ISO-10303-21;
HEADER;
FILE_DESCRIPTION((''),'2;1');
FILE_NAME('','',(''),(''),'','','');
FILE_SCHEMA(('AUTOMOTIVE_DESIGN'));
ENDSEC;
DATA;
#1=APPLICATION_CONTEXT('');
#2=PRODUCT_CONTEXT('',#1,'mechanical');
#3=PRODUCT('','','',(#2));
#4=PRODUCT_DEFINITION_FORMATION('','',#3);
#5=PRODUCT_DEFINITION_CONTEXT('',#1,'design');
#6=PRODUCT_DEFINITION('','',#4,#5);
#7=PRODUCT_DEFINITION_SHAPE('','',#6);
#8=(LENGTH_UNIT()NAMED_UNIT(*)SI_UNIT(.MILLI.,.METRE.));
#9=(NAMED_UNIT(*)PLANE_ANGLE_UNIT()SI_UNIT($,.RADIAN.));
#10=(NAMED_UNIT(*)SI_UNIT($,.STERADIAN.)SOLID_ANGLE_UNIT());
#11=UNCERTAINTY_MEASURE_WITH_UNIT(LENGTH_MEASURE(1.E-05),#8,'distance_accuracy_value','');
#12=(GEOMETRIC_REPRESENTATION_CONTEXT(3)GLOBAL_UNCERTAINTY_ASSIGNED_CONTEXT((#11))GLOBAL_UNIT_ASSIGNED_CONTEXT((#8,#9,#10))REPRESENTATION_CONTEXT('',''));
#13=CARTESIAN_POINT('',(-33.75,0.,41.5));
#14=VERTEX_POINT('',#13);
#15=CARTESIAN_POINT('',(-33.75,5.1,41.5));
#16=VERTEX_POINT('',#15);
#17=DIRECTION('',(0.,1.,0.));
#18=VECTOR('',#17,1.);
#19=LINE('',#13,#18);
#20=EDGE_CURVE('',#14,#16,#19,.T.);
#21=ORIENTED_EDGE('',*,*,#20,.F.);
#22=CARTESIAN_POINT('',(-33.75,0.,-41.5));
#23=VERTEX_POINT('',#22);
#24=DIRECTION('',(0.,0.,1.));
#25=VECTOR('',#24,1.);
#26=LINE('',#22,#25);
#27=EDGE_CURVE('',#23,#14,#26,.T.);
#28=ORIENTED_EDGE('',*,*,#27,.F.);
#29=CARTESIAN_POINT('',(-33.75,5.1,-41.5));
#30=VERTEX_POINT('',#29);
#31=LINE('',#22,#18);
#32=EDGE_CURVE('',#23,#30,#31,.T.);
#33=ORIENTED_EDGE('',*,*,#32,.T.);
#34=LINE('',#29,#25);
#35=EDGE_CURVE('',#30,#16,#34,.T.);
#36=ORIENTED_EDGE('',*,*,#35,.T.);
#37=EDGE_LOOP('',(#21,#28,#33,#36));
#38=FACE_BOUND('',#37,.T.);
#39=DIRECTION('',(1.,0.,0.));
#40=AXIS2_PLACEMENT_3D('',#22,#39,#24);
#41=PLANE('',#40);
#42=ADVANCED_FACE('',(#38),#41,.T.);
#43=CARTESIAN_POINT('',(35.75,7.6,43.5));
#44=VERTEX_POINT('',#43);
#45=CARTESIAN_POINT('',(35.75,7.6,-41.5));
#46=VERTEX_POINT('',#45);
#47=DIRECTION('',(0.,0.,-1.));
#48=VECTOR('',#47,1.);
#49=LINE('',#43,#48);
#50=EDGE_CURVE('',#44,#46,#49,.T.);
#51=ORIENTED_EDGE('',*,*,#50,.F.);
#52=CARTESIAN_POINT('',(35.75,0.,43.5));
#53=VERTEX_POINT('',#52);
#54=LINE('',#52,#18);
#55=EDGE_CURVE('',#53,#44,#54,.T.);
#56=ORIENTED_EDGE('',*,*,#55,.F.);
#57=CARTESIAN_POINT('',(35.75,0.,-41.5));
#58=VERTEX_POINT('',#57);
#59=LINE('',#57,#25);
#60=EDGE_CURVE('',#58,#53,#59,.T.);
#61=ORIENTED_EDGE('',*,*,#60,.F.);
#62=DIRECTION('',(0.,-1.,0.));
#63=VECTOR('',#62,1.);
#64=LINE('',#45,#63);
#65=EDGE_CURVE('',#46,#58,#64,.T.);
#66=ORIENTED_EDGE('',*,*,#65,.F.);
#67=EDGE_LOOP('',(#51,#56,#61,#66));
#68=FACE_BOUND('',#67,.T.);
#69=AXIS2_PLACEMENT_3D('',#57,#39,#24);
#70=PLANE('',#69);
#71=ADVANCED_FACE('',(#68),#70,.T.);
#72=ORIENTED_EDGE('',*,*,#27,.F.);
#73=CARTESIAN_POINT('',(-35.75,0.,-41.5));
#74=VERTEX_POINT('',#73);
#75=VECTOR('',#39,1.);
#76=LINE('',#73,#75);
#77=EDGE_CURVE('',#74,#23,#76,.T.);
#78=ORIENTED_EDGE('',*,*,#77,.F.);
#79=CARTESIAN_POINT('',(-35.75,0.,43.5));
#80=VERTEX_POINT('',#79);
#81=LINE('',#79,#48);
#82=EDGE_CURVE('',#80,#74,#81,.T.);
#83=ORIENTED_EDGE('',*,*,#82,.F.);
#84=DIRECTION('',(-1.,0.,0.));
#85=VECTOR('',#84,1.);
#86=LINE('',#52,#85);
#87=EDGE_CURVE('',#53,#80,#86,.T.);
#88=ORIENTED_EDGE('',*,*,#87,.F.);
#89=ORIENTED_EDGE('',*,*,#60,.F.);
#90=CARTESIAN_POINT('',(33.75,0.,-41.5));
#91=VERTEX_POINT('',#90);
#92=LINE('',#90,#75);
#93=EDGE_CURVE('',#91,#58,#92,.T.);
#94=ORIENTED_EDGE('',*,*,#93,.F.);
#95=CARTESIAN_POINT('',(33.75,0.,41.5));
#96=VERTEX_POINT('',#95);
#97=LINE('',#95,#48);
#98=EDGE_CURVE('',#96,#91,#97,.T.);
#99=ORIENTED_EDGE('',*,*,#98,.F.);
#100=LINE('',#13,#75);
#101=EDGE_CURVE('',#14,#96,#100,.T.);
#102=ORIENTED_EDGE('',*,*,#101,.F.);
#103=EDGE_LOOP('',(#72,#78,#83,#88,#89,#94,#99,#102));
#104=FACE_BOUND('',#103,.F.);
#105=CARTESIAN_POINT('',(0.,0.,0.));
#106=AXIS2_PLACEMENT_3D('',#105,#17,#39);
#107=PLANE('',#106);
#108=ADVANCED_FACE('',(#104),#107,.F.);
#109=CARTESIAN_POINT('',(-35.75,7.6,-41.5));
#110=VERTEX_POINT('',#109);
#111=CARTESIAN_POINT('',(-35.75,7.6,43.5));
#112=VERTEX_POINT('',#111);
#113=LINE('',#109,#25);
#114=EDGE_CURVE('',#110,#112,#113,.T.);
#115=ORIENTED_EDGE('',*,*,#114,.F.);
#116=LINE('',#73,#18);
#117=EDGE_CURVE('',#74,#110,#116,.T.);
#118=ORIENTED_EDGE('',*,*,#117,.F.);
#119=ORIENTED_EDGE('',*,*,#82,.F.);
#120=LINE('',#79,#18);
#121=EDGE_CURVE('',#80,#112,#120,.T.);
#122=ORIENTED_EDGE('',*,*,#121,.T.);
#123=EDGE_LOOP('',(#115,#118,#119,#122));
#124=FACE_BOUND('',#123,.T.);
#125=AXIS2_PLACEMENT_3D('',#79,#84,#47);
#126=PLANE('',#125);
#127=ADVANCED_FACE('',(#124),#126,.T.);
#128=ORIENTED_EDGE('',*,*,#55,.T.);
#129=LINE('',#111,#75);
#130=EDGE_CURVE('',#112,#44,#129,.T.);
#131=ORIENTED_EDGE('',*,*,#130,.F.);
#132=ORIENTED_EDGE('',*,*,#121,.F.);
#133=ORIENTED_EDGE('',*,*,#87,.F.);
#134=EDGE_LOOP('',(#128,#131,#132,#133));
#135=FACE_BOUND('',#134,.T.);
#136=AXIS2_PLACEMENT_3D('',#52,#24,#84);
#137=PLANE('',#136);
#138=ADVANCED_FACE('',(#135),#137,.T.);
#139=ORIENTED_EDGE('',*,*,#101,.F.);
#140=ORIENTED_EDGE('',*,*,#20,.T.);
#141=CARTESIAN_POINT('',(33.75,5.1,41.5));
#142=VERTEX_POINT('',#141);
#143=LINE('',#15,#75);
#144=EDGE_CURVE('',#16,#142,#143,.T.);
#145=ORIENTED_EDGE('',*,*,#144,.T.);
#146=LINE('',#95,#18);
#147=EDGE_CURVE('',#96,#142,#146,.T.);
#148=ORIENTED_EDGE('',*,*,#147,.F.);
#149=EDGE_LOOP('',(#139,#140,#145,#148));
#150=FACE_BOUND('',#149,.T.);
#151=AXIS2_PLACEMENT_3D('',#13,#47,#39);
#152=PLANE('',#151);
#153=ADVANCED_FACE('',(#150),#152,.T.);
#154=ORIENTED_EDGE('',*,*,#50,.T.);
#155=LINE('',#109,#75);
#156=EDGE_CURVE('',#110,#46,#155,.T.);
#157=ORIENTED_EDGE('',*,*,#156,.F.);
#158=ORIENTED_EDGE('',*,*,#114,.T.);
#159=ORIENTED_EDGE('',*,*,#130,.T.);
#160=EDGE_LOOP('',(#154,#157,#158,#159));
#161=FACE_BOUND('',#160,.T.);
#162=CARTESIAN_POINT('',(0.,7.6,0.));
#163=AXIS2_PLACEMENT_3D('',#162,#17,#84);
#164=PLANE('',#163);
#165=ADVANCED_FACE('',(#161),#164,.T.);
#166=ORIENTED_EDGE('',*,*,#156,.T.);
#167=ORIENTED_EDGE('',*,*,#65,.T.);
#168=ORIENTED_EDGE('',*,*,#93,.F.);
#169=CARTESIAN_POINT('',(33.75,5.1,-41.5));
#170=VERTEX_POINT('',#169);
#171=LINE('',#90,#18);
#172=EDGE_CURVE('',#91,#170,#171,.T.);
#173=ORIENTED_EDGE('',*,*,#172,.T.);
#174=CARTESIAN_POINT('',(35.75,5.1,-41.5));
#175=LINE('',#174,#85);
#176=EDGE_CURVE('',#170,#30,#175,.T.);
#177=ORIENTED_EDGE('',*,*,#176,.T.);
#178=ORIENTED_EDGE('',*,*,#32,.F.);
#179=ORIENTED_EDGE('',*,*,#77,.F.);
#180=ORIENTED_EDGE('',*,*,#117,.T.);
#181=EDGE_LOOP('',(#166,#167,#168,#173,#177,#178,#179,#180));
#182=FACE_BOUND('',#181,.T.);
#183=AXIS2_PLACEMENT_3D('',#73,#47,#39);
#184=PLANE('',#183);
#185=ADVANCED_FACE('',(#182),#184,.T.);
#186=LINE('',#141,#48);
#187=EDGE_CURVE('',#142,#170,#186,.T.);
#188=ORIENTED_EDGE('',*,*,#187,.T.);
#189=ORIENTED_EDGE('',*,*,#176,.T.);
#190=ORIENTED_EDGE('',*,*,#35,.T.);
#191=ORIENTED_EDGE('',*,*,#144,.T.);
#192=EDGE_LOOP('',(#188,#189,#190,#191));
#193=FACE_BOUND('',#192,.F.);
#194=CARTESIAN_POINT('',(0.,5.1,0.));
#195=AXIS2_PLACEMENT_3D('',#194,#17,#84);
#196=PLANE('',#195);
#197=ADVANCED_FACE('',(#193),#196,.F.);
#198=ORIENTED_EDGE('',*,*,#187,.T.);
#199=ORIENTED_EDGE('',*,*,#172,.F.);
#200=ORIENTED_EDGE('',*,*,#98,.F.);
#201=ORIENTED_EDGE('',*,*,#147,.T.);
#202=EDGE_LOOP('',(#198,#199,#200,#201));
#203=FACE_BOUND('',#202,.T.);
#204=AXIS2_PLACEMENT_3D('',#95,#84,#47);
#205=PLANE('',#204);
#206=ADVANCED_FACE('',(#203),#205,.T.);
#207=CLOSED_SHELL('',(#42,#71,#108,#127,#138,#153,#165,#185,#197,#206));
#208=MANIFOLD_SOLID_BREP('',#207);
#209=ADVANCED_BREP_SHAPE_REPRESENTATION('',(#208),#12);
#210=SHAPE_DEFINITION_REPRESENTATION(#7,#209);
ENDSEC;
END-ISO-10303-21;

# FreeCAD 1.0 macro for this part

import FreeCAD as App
import Part
import Sketcher

doc = App.newDocument("Part")
body = doc.addObject("PartDesign::Body", "Body")

sketch1 = body.newObject("Sketcher::SketchObject", "Sketch")
sketch1.AttachmentSupport = (doc.getObject("XZ_Plane"), [""])
sketch1.MapMode = "FlatFace"
sketch1.addGeometry(Part.LineSegment(App.Vector(-33.8, -41.5, 0), App.Vector(-35.8, -41.5, 0)), False)
sketch1.addGeometry(Part.LineSegment(App.Vector(-35.8, -41.5, 0), App.Vector(-35.8, 43.5, 0)), False)
sketch1.addGeometry(Part.LineSegment(App.Vector(-35.8, 43.5, 0), App.Vector(35.8, 43.5, 0)), False)
sketch1.addGeometry(Part.LineSegment(App.Vector(35.8, 43.5, 0), App.Vector(35.8, -41.5, 0)), False)
sketch1.addGeometry(Part.LineSegment(App.Vector(35.8, -41.5, 0), App.Vector(33.8, -41.5, 0)), False)
sketch1.addGeometry(Part.LineSegment(App.Vector(33.8, -41.5, 0), App.Vector(33.8, 41.5, 0)), False)
sketch1.addGeometry(Part.LineSegment(App.Vector(33.8, 41.5, 0), App.Vector(-33.8, 41.5, 0)), False)
sketch1.addGeometry(Part.LineSegment(App.Vector(-33.8, 41.5, 0), App.Vector(-33.8, -41.5, 0)), False)
sketch1.addConstraint(Sketcher.Constraint("Coincident", 0, 2, 1, 1))
sketch1.addConstraint(Sketcher.Constraint("Coincident", 1, 2, 2, 1))
sketch1.addConstraint(Sketcher.Constraint("Coincident", 2, 2, 3, 1))
sketch1.addConstraint(Sketcher.Constraint("Coincident", 3, 2, 4, 1))
sketch1.addConstraint(Sketcher.Constraint("Coincident", 4, 2, 5, 1))
sketch1.addConstraint(Sketcher.Constraint("Coincident", 5, 2, 6, 1))
sketch1.addConstraint(Sketcher.Constraint("Coincident", 6, 2, 7, 1))
sketch1.addConstraint(Sketcher.Constraint("Coincident", 7, 2, 0, 1))
sketch1.addConstraint(Sketcher.Constraint("Horizontal", 0))
sketch1.addConstraint(Sketcher.Constraint("Vertical", 1))
sketch1.addConstraint(Sketcher.Constraint("Horizontal", 2))
sketch1.addConstraint(Sketcher.Constraint("Vertical", 3))
sketch1.addConstraint(Sketcher.Constraint("Horizontal", 4))
sketch1.addConstraint(Sketcher.Constraint("Vertical", 5))
sketch1.addConstraint(Sketcher.Constraint("Horizontal", 6))
sketch1.addConstraint(Sketcher.Constraint("Vertical", 7))
sketch1.addConstraint(Sketcher.Constraint("Symmetric", 4, 2, 6, 2, -1, 1))
sketch1.addConstraint(Sketcher.Constraint("Symmetric", 0, 2, 3, 2, -2))
sketch1.addConstraint(Sketcher.Constraint("DistanceX", 0, 2, 0, 1, 2.0))
sketch1.addConstraint(Sketcher.Constraint("DistanceY", 5, 1, 5, 2, 83.0))
sketch1.addConstraint(Sketcher.Constraint("DistanceX", 6, 2, 6, 1, 67.5))
sketch1.addConstraint(Sketcher.Constraint("DistanceY", 5, 2, 2, 2, 2.0))
pad1 = body.newObject("PartDesign::Pad", "Pad")
pad1.Profile = sketch1
pad1.Length = 5.1
pad1.Reversed = True

sketch2 = body.newObject("Sketcher::SketchObject", "Sketch001")
sketch2.AttachmentSupport = (doc.getObject("XZ_Plane"), [""])
sketch2.MapMode = "FlatFace"
sketch2.AttachmentOffset = App.Placement(App.Vector(0, 0, -5.1), App.Rotation())
sketch2.addGeometry(Part.LineSegment(App.Vector(-36, -42, 0), App.Vector(-36, 44, 0)), False)
sketch2.addGeometry(Part.LineSegment(App.Vector(-36, 44, 0), App.Vector(36, 44, 0)), False)
sketch2.addGeometry(Part.LineSegment(App.Vector(36, 44, 0), App.Vector(36, -42, 0)), False)
sketch2.addGeometry(Part.LineSegment(App.Vector(36, -42, 0), App.Vector(-36, -42, 0)), False)
sketch2.addConstraint(Sketcher.Constraint("Coincident", 0, 2, 1, 1))
sketch2.addConstraint(Sketcher.Constraint("Coincident", 1, 2, 2, 1))
sketch2.addConstraint(Sketcher.Constraint("Coincident", 2, 2, 3, 1))
sketch2.addConstraint(Sketcher.Constraint("Coincident", 3, 2, 0, 1))
sketch2.addConstraint(Sketcher.Constraint("Vertical", 0))
sketch2.addConstraint(Sketcher.Constraint("Horizontal", 1))
sketch2.addConstraint(Sketcher.Constraint("Vertical", 2))
sketch2.addConstraint(Sketcher.Constraint("Horizontal", 3))
sketch2.addConstraint(Sketcher.Constraint("DistanceY", 0, 1, 0, 2, 85.0))
sketch2.addConstraint(Sketcher.Constraint("DistanceX", 1, 1, 1, 2, 71.5))
sketch2.addConstraint(Sketcher.Constraint("DistanceY", -1, 1, 0, 2, 43.5))
sketch2.addConstraint(Sketcher.Constraint("DistanceX", 0, 2, -1, 1, 35.75))
pad2 = body.newObject("PartDesign::Pad", "Pad001")
pad2.Profile = sketch2
pad2.Length = 2.5
pad2.Reversed = True

doc.recompute()
